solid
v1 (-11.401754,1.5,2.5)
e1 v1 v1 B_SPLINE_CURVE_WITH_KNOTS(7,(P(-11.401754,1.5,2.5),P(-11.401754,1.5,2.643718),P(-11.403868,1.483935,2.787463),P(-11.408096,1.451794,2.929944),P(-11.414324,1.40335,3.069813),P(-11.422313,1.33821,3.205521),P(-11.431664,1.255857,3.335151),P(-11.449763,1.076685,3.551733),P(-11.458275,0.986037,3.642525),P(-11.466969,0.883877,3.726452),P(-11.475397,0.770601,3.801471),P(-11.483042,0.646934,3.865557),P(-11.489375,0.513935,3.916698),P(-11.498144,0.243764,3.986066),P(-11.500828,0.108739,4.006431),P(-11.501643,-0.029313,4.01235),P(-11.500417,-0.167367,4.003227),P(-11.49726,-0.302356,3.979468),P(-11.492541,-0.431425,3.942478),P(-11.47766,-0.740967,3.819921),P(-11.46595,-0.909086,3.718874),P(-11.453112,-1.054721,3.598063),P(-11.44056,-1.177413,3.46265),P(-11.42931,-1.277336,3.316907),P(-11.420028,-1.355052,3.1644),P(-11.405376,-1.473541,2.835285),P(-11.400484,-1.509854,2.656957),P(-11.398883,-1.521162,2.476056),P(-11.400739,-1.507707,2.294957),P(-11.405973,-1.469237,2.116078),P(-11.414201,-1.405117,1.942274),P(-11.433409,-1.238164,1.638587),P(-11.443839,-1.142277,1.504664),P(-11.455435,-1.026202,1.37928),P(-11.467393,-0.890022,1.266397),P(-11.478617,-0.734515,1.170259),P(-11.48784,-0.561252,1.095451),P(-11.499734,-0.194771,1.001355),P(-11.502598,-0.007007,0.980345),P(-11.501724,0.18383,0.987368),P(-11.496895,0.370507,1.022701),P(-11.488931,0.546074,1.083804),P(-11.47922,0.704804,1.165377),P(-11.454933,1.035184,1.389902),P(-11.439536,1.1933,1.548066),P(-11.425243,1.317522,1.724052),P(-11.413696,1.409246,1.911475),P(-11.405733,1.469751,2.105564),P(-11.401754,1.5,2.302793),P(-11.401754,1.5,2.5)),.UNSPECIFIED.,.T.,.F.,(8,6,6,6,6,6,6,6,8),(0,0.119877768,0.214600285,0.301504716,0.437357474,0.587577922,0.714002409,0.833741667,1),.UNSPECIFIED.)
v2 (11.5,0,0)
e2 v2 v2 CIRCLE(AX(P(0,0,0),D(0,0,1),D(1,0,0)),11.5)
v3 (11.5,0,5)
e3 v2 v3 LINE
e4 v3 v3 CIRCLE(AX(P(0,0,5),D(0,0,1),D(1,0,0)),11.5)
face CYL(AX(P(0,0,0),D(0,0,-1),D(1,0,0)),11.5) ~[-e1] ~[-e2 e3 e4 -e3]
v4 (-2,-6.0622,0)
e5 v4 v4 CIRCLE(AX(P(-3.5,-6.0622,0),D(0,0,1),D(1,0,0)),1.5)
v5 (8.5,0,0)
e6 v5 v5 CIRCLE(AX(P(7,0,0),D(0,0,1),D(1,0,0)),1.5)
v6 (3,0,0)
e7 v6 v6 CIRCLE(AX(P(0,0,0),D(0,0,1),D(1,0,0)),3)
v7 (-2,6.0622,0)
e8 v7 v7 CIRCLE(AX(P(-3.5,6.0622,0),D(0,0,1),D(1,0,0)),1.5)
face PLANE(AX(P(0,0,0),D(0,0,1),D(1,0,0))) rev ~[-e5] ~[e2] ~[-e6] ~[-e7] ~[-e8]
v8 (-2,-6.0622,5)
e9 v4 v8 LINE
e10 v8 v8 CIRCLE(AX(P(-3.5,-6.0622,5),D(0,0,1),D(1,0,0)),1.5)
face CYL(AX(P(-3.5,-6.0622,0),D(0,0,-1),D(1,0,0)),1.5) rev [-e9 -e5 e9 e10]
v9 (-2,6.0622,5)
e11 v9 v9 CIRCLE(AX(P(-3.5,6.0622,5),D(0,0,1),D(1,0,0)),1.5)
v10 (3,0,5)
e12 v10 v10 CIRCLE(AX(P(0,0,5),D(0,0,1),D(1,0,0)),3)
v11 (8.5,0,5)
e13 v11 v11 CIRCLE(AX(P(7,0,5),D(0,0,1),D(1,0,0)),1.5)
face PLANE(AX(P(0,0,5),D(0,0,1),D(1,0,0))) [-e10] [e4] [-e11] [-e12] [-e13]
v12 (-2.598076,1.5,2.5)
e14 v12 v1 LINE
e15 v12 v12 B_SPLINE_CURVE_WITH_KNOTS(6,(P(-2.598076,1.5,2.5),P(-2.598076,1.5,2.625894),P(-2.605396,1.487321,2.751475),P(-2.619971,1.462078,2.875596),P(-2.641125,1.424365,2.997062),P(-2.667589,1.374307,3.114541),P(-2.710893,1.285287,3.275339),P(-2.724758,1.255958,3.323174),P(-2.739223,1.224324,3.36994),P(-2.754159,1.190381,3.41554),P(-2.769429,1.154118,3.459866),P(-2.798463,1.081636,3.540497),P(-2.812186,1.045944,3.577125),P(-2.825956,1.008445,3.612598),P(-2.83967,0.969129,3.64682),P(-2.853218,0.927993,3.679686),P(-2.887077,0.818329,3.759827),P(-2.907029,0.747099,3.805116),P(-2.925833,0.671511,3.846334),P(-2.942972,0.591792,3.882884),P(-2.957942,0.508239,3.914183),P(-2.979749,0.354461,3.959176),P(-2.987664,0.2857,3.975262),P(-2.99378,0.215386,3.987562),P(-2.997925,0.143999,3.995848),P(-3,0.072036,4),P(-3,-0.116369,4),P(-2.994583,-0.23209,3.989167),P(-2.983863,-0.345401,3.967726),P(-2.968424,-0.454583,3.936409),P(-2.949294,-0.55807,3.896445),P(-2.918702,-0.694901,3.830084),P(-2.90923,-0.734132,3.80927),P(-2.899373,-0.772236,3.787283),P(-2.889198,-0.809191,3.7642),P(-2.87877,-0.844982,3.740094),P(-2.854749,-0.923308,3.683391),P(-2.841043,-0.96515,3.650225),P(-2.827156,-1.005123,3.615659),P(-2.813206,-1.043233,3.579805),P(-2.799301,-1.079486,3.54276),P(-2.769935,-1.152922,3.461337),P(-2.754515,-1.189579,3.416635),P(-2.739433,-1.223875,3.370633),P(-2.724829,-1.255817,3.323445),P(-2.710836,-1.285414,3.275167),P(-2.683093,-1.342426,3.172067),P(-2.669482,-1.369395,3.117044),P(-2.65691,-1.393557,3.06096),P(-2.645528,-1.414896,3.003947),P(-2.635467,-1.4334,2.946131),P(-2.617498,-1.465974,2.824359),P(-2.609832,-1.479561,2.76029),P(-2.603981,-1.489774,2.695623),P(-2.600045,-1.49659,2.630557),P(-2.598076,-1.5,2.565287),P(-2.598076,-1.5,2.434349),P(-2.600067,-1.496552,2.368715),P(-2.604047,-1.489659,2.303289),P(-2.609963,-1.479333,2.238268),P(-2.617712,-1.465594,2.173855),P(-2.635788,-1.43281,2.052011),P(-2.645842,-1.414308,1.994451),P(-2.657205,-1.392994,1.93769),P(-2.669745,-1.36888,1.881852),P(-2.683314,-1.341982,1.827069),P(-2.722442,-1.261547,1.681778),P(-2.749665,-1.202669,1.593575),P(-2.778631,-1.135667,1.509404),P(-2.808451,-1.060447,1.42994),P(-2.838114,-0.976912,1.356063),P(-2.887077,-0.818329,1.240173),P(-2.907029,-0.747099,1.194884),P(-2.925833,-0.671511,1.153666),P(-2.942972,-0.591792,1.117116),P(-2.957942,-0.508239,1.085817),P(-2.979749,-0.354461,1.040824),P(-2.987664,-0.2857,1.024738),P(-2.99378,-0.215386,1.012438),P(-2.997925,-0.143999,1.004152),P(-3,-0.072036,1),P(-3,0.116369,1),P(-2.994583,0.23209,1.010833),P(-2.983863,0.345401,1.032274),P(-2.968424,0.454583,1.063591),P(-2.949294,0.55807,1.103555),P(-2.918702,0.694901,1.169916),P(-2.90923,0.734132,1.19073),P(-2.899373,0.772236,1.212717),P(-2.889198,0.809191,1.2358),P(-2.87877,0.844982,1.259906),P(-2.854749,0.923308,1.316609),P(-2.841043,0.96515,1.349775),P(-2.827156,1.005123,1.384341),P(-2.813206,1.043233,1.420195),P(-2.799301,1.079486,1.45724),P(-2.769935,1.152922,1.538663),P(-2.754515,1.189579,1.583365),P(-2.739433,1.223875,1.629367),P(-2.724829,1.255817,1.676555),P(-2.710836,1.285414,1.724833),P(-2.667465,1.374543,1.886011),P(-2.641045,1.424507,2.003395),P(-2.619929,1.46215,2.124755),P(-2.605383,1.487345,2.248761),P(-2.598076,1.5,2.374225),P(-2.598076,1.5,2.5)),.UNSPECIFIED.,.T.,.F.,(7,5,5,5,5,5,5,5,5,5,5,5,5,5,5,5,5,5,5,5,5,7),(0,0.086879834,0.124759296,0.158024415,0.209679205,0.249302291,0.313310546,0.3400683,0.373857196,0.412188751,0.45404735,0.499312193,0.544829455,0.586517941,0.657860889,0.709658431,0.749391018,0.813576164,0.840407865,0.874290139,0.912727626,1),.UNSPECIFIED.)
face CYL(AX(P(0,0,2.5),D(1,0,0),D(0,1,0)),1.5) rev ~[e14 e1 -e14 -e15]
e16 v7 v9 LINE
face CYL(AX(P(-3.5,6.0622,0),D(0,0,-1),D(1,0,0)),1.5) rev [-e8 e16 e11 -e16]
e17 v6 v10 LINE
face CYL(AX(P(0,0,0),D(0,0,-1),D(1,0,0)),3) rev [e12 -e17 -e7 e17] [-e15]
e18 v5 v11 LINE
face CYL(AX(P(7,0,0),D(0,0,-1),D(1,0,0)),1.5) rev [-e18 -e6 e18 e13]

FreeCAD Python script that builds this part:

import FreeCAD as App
import Part
import Sketcher
from FreeCAD import Vector
Q = App.Units.Quantity

doc = App.newDocument("Part")
body = doc.addObject("PartDesign::Body", "Body")

sketch1 = body.newObject("Sketcher::SketchObject", "Sketch")
sketch1.AttachmentSupport = (doc.getObject("XY_Plane"), [""])
sketch1.MapMode = "FlatFace"
sketch1.addGeometry([
    Part.Circle(Vector(0, 0, 0), Vector(0, 0, 1), 11.5),
    Part.Circle(Vector(-3.5, -6.0622, 0), Vector(0, 0, 1), 1.5),
    Part.Circle(Vector(-3.5, 6.0622, 0), Vector(0, 0, 1), 1.5),
    Part.Circle(Vector(0, 0, 0), Vector(0, 0, 1), 3),
    Part.Circle(Vector(7, 0, 0), Vector(0, 0, 1), 1.5),
], False)
sketch1.addConstraint([
    Sketcher.Constraint("Coincident", 0, 3, -1, 1),
    Sketcher.Constraint("Coincident", 3, 3, -1, 1),
    Sketcher.Constraint("Equal", 1, 2),
    Sketcher.Constraint("Equal", 2, 4),
    Sketcher.Constraint("Symmetric", 1, 3, 2, 3, -1),
    Sketcher.Constraint("PointOnObject", 4, 3, -1),
    Sketcher.Constraint("Diameter", 0, Q("23 mm")),
    Sketcher.Constraint("Diameter", 1, Q("3 mm")),
    Sketcher.Constraint("Diameter", 3, Q("6 mm")),
    Sketcher.Constraint("DistanceX", -1, 1, 4, 3, Q("7 mm")),
    Sketcher.Constraint("DistanceX", 1, 3, -1, 1, Q("3.5 mm")),
    Sketcher.Constraint("DistanceY", 1, 3, -1, 1, Q("6.0622 mm")),
])
pad1 = body.newObject("PartDesign::Pad", "Pad")
pad1.Profile = sketch1
pad1.Length = 5

sketch2 = body.newObject("Sketcher::SketchObject", "Sketch001")
sketch2.AttachmentSupport = (doc.getObject("YZ_Plane"), [""])
sketch2.MapMode = "FlatFace"
sketch2.addGeometry(Part.Circle(Vector(0, 2.5, 0), Vector(0, 0, 1), 1.5), False)
sketch2.addConstraint([
    Sketcher.Constraint("PointOnObject", 0, 3, -2),
    Sketcher.Constraint("Diameter", 0, Q("3 mm")),
    Sketcher.Constraint("DistanceY", -1, 1, 0, 3, Q("2.5 mm")),
])
pocket1 = body.newObject("PartDesign::Pocket", "Pocket")
pocket1.Profile = sketch2
pocket1.Type = "ThroughAll"

doc.recompute()
